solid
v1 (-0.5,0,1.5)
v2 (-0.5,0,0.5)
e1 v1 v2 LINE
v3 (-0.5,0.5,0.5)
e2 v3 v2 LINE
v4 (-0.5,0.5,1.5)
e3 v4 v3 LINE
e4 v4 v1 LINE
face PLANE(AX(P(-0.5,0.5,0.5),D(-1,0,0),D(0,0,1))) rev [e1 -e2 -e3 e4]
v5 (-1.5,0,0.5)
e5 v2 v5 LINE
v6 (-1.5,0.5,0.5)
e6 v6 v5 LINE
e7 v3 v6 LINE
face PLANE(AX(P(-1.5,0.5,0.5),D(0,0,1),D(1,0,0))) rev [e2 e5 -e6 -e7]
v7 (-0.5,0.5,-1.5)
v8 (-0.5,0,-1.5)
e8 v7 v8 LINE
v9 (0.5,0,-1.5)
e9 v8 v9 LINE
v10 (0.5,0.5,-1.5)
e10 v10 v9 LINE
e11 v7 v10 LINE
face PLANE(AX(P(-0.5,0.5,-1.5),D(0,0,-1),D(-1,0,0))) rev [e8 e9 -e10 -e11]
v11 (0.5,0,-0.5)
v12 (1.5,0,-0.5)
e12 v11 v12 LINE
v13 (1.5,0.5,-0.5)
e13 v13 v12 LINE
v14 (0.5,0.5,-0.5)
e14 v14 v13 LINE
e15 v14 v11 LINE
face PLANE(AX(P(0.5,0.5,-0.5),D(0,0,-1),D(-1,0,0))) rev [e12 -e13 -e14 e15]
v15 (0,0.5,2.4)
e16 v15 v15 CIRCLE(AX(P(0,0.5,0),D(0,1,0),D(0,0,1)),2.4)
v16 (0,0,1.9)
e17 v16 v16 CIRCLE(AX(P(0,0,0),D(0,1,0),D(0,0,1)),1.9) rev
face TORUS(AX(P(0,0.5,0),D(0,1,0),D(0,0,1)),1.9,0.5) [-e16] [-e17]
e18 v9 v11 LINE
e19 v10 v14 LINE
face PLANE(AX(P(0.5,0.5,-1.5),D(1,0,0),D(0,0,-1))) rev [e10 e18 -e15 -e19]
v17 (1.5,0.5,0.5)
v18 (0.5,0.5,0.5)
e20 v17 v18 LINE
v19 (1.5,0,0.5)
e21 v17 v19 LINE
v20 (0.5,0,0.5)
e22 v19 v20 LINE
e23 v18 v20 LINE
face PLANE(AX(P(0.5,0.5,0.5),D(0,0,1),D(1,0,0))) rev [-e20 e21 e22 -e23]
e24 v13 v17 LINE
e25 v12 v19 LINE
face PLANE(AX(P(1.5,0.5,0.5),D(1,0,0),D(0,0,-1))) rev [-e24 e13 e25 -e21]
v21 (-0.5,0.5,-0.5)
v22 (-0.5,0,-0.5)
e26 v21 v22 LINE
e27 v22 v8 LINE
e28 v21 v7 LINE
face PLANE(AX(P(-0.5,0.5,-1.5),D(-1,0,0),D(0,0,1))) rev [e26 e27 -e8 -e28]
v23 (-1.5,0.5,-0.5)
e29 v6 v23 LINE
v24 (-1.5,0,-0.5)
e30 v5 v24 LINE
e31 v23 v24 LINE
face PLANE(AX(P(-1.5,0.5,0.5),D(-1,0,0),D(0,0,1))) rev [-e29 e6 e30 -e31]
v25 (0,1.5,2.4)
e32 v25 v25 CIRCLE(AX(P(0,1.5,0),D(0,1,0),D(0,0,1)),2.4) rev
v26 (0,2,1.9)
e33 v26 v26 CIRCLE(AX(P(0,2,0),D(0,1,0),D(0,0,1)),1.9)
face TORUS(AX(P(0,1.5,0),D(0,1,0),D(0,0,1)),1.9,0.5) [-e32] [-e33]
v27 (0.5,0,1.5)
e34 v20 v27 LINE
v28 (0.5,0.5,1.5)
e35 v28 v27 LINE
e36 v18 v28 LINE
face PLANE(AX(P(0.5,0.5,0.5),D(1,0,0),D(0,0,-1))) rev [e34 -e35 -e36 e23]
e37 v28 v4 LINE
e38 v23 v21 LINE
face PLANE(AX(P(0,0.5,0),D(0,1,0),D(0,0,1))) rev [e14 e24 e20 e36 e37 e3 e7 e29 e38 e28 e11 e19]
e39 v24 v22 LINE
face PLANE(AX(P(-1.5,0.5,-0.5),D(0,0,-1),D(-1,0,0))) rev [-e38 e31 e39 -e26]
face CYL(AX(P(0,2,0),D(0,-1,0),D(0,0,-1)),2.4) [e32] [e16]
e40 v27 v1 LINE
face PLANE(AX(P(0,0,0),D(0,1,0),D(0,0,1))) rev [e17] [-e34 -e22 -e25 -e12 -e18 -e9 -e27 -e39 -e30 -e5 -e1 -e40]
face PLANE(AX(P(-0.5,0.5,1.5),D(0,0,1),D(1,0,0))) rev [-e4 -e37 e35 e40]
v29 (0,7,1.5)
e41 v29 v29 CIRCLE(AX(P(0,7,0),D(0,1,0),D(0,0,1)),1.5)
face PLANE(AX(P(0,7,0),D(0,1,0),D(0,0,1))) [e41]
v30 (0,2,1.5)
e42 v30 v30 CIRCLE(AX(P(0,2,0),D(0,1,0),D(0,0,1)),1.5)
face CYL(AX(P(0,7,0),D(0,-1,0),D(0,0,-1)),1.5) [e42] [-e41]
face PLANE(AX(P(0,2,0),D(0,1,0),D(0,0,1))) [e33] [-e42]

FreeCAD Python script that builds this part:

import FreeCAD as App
import Part
import Sketcher


def edges_at(feature, points):
    """Names of the edges that pass closest to the given points."""
    edges = feature.Shape.Edges
    near = lambda p: min(range(len(edges)), key=lambda i: edges[i].distToShape(Part.Vertex(*p))[0])
    return sorted({f"Edge{near(p) + 1}" for p in points})


def add_polygon(sketch, points):
    """Adds a closed chain of lines whose ends are joined by coincident constraints."""
    first, n = sketch.GeometryCount, len(points)
    for a, b in zip(points, points[1:] + points[:1]):
        sketch.addGeometry(Part.LineSegment(App.Vector(*a, 0), App.Vector(*b, 0)), False)
    for i in range(n):
        sketch.addConstraint(Sketcher.Constraint("Coincident", first + i, 2, first + (i + 1) % n, 1))

doc = App.newDocument("Part")
body = doc.addObject("PartDesign::Body", "Body")

# Sketch on XZ plane
sketch1 = doc.addObject("Sketcher::SketchObject", "Sketch")
body.addObject(sketch1)
sketch1.AttachmentSupport = (doc.XZ_Plane, [""])
sketch1.MapMode = "FlatFace"
sketch1.addGeometry(Part.Circle(App.Vector(0, 0, 0), App.Vector(0, 0, 1), 2.4), False)
sketch1.addConstraint(Sketcher.Constraint("Coincident", 0, 3, -1, 1))
sketch1.addConstraint(Sketcher.Constraint("Diameter", 0, 4.8))
pad1 = doc.addObject("PartDesign::Pad", "Pad")
body.addObject(pad1)
pad1.Profile = sketch1
pad1.Length = 2
pad1.Reversed = True

# Sketch on XZ plane
sketch2 = doc.addObject("Sketcher::SketchObject", "Sketch001")
body.addObject(sketch2)
sketch2.AttachmentSupport = (doc.XZ_Plane, [""])
sketch2.MapMode = "FlatFace"
sketch2.AttachmentOffset = App.Placement(App.Vector(0, 0, -2), App.Rotation())
sketch2.addGeometry(Part.Circle(App.Vector(0, 0, 0), App.Vector(0, 0, 1), 1.5), False)
sketch2.addConstraint(Sketcher.Constraint("Coincident", 0, 3, -1, 1))
sketch2.addConstraint(Sketcher.Constraint("Diameter", 0, 3.0))
pad2 = doc.addObject("PartDesign::Pad", "Pad001")
body.addObject(pad2)
pad2.Profile = sketch2
pad2.Length = 5
pad2.Reversed = True
doc.recompute()

fillet = doc.addObject("PartDesign::Fillet", "Fillet")
body.addObject(fillet)
fillet.Base = (pad2, edges_at(pad2, [(0, 0, -2.4), (0, 2, -2.4)]))
fillet.Radius = 0.5

# Sketch on XZ plane
sketch3 = doc.addObject("Sketcher::SketchObject", "Sketch002")
body.addObject(sketch3)
sketch3.AttachmentSupport = (doc.XZ_Plane, [""])
sketch3.MapMode = "FlatFace"
add_polygon(sketch3, [(1.5, 0.5), (0.5, 0.5), (0.5, 1.5), (-0.5, 1.5), (-0.5, 0.5), (-1.5, 0.5), (-1.5, -0.5), (-0.5, -0.5), (-0.5, -1.5), (0.5, -1.5), (0.5, -0.5), (1.5, -0.5)])  # lines 0-11
sketch3.addConstraint(Sketcher.Constraint("Horizontal", 0))
sketch3.addConstraint(Sketcher.Constraint("Vertical", 1))
sketch3.addConstraint(Sketcher.Constraint("Horizontal", 2))
sketch3.addConstraint(Sketcher.Constraint("Vertical", 3))
sketch3.addConstraint(Sketcher.Constraint("Horizontal", 4))
sketch3.addConstraint(Sketcher.Constraint("Vertical", 5))
sketch3.addConstraint(Sketcher.Constraint("Horizontal", 6))
sketch3.addConstraint(Sketcher.Constraint("Vertical", 7))
sketch3.addConstraint(Sketcher.Constraint("Horizontal", 8))
sketch3.addConstraint(Sketcher.Constraint("Vertical", 9))
sketch3.addConstraint(Sketcher.Constraint("Horizontal", 10))
sketch3.addConstraint(Sketcher.Constraint("Vertical", 11))
sketch3.addConstraint(Sketcher.Constraint("Symmetric", 0, 2, 6, 2, -1, 1))
sketch3.addConstraint(Sketcher.Constraint("Symmetric", 2, 2, 8, 2, -1, 1))
sketch3.addConstraint(Sketcher.Constraint("Symmetric", 4, 2, 10, 2, -1, 1))
sketch3.addConstraint(Sketcher.Constraint("Symmetric", 0, 2, 3, 2, -2))
sketch3.addConstraint(Sketcher.Constraint("Equal", 0, 2))
sketch3.addConstraint(Sketcher.Constraint("Equal", 10, 1))
sketch3.addConstraint(Sketcher.Constraint("Equal", 3, 5))
sketch3.addConstraint(Sketcher.Constraint("DistanceX", 0, 2, 0, 1, 1.0))
pocket1 = doc.addObject("PartDesign::Pocket", "Pocket")
body.addObject(pocket1)
pocket1.Profile = sketch3
pocket1.Length = 0.5

doc.recompute()
